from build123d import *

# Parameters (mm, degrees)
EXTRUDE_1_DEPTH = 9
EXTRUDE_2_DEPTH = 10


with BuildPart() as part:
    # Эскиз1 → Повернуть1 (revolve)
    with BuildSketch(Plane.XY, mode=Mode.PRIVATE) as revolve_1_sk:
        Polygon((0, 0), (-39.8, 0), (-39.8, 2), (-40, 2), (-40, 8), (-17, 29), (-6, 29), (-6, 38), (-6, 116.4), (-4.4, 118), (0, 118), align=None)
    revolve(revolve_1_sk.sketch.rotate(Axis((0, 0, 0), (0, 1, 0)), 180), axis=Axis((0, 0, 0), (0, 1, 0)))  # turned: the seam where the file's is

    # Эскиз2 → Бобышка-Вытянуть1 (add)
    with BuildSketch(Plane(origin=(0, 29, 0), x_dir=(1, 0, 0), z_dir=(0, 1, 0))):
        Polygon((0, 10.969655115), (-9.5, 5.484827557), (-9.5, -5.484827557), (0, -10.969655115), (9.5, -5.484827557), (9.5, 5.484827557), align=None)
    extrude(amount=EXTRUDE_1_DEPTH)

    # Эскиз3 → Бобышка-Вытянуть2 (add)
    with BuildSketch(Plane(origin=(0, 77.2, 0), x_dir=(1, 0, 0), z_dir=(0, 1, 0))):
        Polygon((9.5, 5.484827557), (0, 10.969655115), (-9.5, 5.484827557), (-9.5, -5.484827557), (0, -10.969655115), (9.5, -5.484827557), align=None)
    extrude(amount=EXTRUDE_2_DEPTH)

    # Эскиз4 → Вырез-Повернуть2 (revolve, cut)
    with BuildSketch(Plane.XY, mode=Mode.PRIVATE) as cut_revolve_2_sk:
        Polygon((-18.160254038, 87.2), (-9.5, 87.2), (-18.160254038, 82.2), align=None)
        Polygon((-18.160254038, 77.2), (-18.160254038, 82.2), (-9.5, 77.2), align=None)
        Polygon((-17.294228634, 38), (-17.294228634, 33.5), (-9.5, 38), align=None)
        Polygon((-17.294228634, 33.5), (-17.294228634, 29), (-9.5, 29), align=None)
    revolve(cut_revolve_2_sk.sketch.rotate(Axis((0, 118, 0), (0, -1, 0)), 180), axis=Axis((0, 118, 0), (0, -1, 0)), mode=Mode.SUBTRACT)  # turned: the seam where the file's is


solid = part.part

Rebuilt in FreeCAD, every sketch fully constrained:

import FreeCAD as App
import Part
import Sketcher
Q = App.Units.Quantity

doc = App.newDocument("Part")
body = doc.addObject("PartDesign::Body", "Body")

sketch1 = body.newObject("Sketcher::SketchObject", "Sketch")
sketch1.AttachmentSupport = (doc.getObject("XY_Plane"), [""])
sketch1.MapMode = "FlatFace"
sketch1.addGeometry(Part.LineSegment(App.Vector(-39.8, 0, 0), App.Vector(0, 0, 0)), False)
sketch1.addGeometry(Part.LineSegment(App.Vector(0, 0, 0), App.Vector(0, 118, 0)), False)
sketch1.addGeometry(Part.LineSegment(App.Vector(0, 118, 0), App.Vector(-4.4, 118, 0)), False)
sketch1.addGeometry(Part.LineSegment(App.Vector(-4.4, 118, 0), App.Vector(-6, 116.4, 0)), False)
sketch1.addGeometry(Part.LineSegment(App.Vector(-6, 116.4, 0), App.Vector(-6, 29, 0)), False)
sketch1.addGeometry(Part.LineSegment(App.Vector(-6, 29, 0), App.Vector(-17, 29, 0)), False)
sketch1.addGeometry(Part.LineSegment(App.Vector(-17, 29, 0), App.Vector(-40, 8, 0)), False)
sketch1.addGeometry(Part.LineSegment(App.Vector(-40, 8, 0), App.Vector(-40, 2, 0)), False)
sketch1.addGeometry(Part.LineSegment(App.Vector(-40, 2, 0), App.Vector(-39.8, 2, 0)), False)
sketch1.addGeometry(Part.LineSegment(App.Vector(-39.8, 2, 0), App.Vector(-39.8, 0, 0)), False)
sketch1.addConstraint(Sketcher.Constraint("Coincident", 0, 2, 1, 1))
sketch1.addConstraint(Sketcher.Constraint("Coincident", 1, 2, 2, 1))
sketch1.addConstraint(Sketcher.Constraint("Coincident", 2, 2, 3, 1))
sketch1.addConstraint(Sketcher.Constraint("Coincident", 3, 2, 4, 1))
sketch1.addConstraint(Sketcher.Constraint("Coincident", 4, 2, 5, 1))
sketch1.addConstraint(Sketcher.Constraint("Coincident", 5, 2, 6, 1))
sketch1.addConstraint(Sketcher.Constraint("Coincident", 6, 2, 7, 1))
sketch1.addConstraint(Sketcher.Constraint("Coincident", 7, 2, 8, 1))
sketch1.addConstraint(Sketcher.Constraint("Coincident", 8, 2, 9, 1))
sketch1.addConstraint(Sketcher.Constraint("Coincident", 9, 2, 0, 1))
sketch1.addConstraint(Sketcher.Constraint("Horizontal", 0))
sketch1.addConstraint(Sketcher.Constraint("Vertical", 1))
sketch1.addConstraint(Sketcher.Constraint("Horizontal", 2))
sketch1.addConstraint(Sketcher.Constraint("Vertical", 4))
sketch1.addConstraint(Sketcher.Constraint("Horizontal", 5))
sketch1.addConstraint(Sketcher.Constraint("Vertical", 7))
sketch1.addConstraint(Sketcher.Constraint("Horizontal", 8))
sketch1.addConstraint(Sketcher.Constraint("Vertical", 9))
sketch1.addConstraint(Sketcher.Constraint("Coincident", 0, 2, -1, 1))
sketch1.addConstraint(Sketcher.Constraint("DistanceX", 5, 2, 5, 1, Q("11 mm")))
sketch1.addConstraint(Sketcher.Constraint("DistanceY", 1, 1, 1, 2, Q("118 mm")))
sketch1.addConstraint(Sketcher.Constraint("DistanceY", 7, 2, 7, 1, Q("6 mm")))
sketch1.addConstraint(Sketcher.Constraint("DistanceY", 9, 2, 9, 1, Q("2 mm")))
sketch1.addConstraint(Sketcher.Constraint("Angle", 3, Q("-135 deg")))
sketch1.addConstraint(Sketcher.Constraint("DistanceX", 0, 1, 0, 2, Q("39.8 mm")))
sketch1.addConstraint(Sketcher.Constraint("DistanceX", 2, 2, 2, 1, Q("4.4 mm")))
sketch1.addConstraint(Sketcher.Constraint("DistanceX", 8, 1, 8, 2, Q("0.2 mm")))
sketch1.addConstraint(Sketcher.Constraint("DistanceY", 4, 2, 4, 1, Q("87.4 mm")))
sketch1.addConstraint(Sketcher.Constraint("DistanceX", 3, 2, -1, 1, Q("6 mm")))
revolution = body.newObject("PartDesign::Revolution", "Revolution")
revolution.Profile = sketch1
revolution.ReferenceAxis = (sketch1, ["V_Axis"])
revolution.Angle = 360

sketch2 = body.newObject("Sketcher::SketchObject", "Sketch001")
sketch2.AttachmentSupport = (doc.getObject("XZ_Plane"), [""])
sketch2.MapMode = "FlatFace"
sketch2.AttachmentOffset = App.Placement(App.Vector(0, 0, -29), App.Rotation())
sketch2.addGeometry(Part.LineSegment(App.Vector(0, -11, 0), App.Vector(-10, -5, 0)), False)
sketch2.addGeometry(Part.LineSegment(App.Vector(-10, -5, 0), App.Vector(-10, 5, 0)), False)
sketch2.addGeometry(Part.LineSegment(App.Vector(-10, 5, 0), App.Vector(0, 11, 0)), False)
sketch2.addGeometry(Part.LineSegment(App.Vector(0, 11, 0), App.Vector(10, 5, 0)), False)
sketch2.addGeometry(Part.LineSegment(App.Vector(10, 5, 0), App.Vector(10, -5, 0)), False)
sketch2.addGeometry(Part.LineSegment(App.Vector(10, -5, 0), App.Vector(0, -11, 0)), False)
sketch2.addConstraint(Sketcher.Constraint("Coincident", 0, 2, 1, 1))
sketch2.addConstraint(Sketcher.Constraint("Coincident", 1, 2, 2, 1))
sketch2.addConstraint(Sketcher.Constraint("Coincident", 2, 2, 3, 1))
sketch2.addConstraint(Sketcher.Constraint("Coincident", 3, 2, 4, 1))
sketch2.addConstraint(Sketcher.Constraint("Coincident", 4, 2, 5, 1))
sketch2.addConstraint(Sketcher.Constraint("Coincident", 5, 2, 0, 1))
sketch2.addConstraint(Sketcher.Constraint("Vertical", 1))
sketch2.addConstraint(Sketcher.Constraint("Vertical", 4))
sketch2.addConstraint(Sketcher.Constraint("Symmetric", 0, 2, 3, 2, -1, 1))
sketch2.addConstraint(Sketcher.Constraint("Symmetric", 2, 2, 5, 2, -1, 1))
sketch2.addConstraint(Sketcher.Constraint("PointOnObject", 2, 2, -2))
sketch2.addConstraint(Sketcher.Constraint("Parallel", 2, 5))
sketch2.addConstraint(Sketcher.Constraint("Horizontal", 1, 2, 3, 2))
sketch2.addConstraint(Sketcher.Constraint("Angle", 0, Q("150 deg")))
sketch2.addConstraint(Sketcher.Constraint("DistanceX", 1, 2, 3, 2, Q("19 mm")))
sketch2.addConstraint(Sketcher.Constraint("DistanceY", 1, 1, 1, 2, Q("10.969655 mm")))
pad1 = body.newObject("PartDesign::Pad", "Pad")
pad1.Profile = sketch2
pad1.Length = 9
pad1.Reversed = True

sketch3 = body.newObject("Sketcher::SketchObject", "Sketch002")
sketch3.AttachmentSupport = (doc.getObject("XZ_Plane"), [""])
sketch3.MapMode = "FlatFace"
sketch3.AttachmentOffset = App.Placement(App.Vector(0, 0, -77.2), App.Rotation())
sketch3.addGeometry(Part.LineSegment(App.Vector(10, -5, 0), App.Vector(0, -11, 0)), False)
sketch3.addGeometry(Part.LineSegment(App.Vector(0, -11, 0), App.Vector(-10, -5, 0)), False)
sketch3.addGeometry(Part.LineSegment(App.Vector(-10, -5, 0), App.Vector(-10, 5, 0)), False)
sketch3.addGeometry(Part.LineSegment(App.Vector(-10, 5, 0), App.Vector(0, 11, 0)), False)
sketch3.addGeometry(Part.LineSegment(App.Vector(0, 11, 0), App.Vector(10, 5, 0)), False)
sketch3.addGeometry(Part.LineSegment(App.Vector(10, 5, 0), App.Vector(10, -5, 0)), False)
sketch3.addConstraint(Sketcher.Constraint("Coincident", 0, 2, 1, 1))
sketch3.addConstraint(Sketcher.Constraint("Coincident", 1, 2, 2, 1))
sketch3.addConstraint(Sketcher.Constraint("Coincident", 2, 2, 3, 1))
sketch3.addConstraint(Sketcher.Constraint("Coincident", 3, 2, 4, 1))
sketch3.addConstraint(Sketcher.Constraint("Coincident", 4, 2, 5, 1))
sketch3.addConstraint(Sketcher.Constraint("Coincident", 5, 2, 0, 1))
sketch3.addConstraint(Sketcher.Constraint("Vertical", 2))
sketch3.addConstraint(Sketcher.Constraint("Vertical", 5))
sketch3.addConstraint(Sketcher.Constraint("Symmetric", 0, 2, 3, 2, -1, 1))
sketch3.addConstraint(Sketcher.Constraint("Symmetric", 1, 2, 4, 2, -1, 1))
sketch3.addConstraint(Sketcher.Constraint("PointOnObject", 0, 2, -2))
sketch3.addConstraint(Sketcher.Constraint("Parallel", 0, 3))
sketch3.addConstraint(Sketcher.Constraint("Horizontal", 2, 2, 4, 2))
sketch3.addConstraint(Sketcher.Constraint("Angle", 0, Q("-150 deg")))
sketch3.addConstraint(Sketcher.Constraint("DistanceX", 2, 2, 4, 2, Q("19 mm")))
sketch3.addConstraint(Sketcher.Constraint("DistanceY", 2, 1, 2, 2, Q("10.969655 mm")))
pad2 = body.newObject("PartDesign::Pad", "Pad001")
pad2.Profile = sketch3
pad2.Length = 10
pad2.Reversed = True

sketch4 = body.newObject("Sketcher::SketchObject", "Sketch003")
sketch4.AttachmentSupport = (doc.getObject("XY_Plane"), [""])
sketch4.MapMode = "FlatFace"
sketch4.addGeometry(Part.LineSegment(App.Vector(-9.5, 87.2, 0), App.Vector(-18.2, 87.2, 0)), False)
sketch4.addGeometry(Part.LineSegment(App.Vector(-18.2, 87.2, 0), App.Vector(-18.2, 82.2, 0)), False)
sketch4.addGeometry(Part.LineSegment(App.Vector(-18.2, 82.2, 0), App.Vector(-9.5, 87.2, 0)), False)
sketch4.addGeometry(Part.LineSegment(App.Vector(-18.2, 82.2, 0), App.Vector(-18.2, 77.2, 0)), False)
sketch4.addGeometry(Part.LineSegment(App.Vector(-18.2, 77.2, 0), App.Vector(-9.5, 77.2, 0)), False)
sketch4.addGeometry(Part.LineSegment(App.Vector(-9.5, 77.2, 0), App.Vector(-18.2, 82.2, 0)), False)
sketch4.addGeometry(Part.LineSegment(App.Vector(-17.3, 38, 0), App.Vector(-17.3, 33.5, 0)), False)
sketch4.addGeometry(Part.LineSegment(App.Vector(-17.3, 33.5, 0), App.Vector(-9.5, 38, 0)), False)
sketch4.addGeometry(Part.LineSegment(App.Vector(-9.5, 38, 0), App.Vector(-17.3, 38, 0)), False)
sketch4.addGeometry(Part.LineSegment(App.Vector(-17.3, 33.5, 0), App.Vector(-17.3, 29, 0)), False)
sketch4.addGeometry(Part.LineSegment(App.Vector(-17.3, 29, 0), App.Vector(-9.5, 29, 0)), False)
sketch4.addGeometry(Part.LineSegment(App.Vector(-9.5, 29, 0), App.Vector(-17.3, 33.5, 0)), False)
sketch4.addConstraint(Sketcher.Constraint("Coincident", 0, 2, 1, 1))
sketch4.addConstraint(Sketcher.Constraint("Coincident", 1, 2, 2, 1))
sketch4.addConstraint(Sketcher.Constraint("Coincident", 2, 2, 0, 1))
sketch4.addConstraint(Sketcher.Constraint("Coincident", 3, 2, 4, 1))
sketch4.addConstraint(Sketcher.Constraint("Coincident", 4, 2, 5, 1))
sketch4.addConstraint(Sketcher.Constraint("Coincident", 5, 2, 3, 1))
sketch4.addConstraint(Sketcher.Constraint("Coincident", 6, 2, 7, 1))
sketch4.addConstraint(Sketcher.Constraint("Coincident", 7, 2, 8, 1))
sketch4.addConstraint(Sketcher.Constraint("Coincident", 8, 2, 6, 1))
sketch4.addConstraint(Sketcher.Constraint("Coincident", 9, 2, 10, 1))
sketch4.addConstraint(Sketcher.Constraint("Coincident", 10, 2, 11, 1))
sketch4.addConstraint(Sketcher.Constraint("Coincident", 11, 2, 9, 1))
sketch4.addConstraint(Sketcher.Constraint("Horizontal", 0))
sketch4.addConstraint(Sketcher.Constraint("Vertical", 1))
sketch4.addConstraint(Sketcher.Constraint("Vertical", 3))
sketch4.addConstraint(Sketcher.Constraint("Horizontal", 4))
sketch4.addConstraint(Sketcher.Constraint("Vertical", 6))
sketch4.addConstraint(Sketcher.Constraint("Horizontal", 8))
sketch4.addConstraint(Sketcher.Constraint("Vertical", 9))
sketch4.addConstraint(Sketcher.Constraint("Horizontal", 10))
sketch4.addConstraint(Sketcher.Constraint("Coincident", 5, 2, 1, 2))
sketch4.addConstraint(Sketcher.Constraint("Coincident", 11, 2, 6, 2))
sketch4.addConstraint(Sketcher.Constraint("Parallel", 2, 7))
sketch4.addConstraint(Sketcher.Constraint("Parallel", 5, 11))
sketch4.addConstraint(Sketcher.Constraint("Vertical", 2, 2, 4, 2))
sketch4.addConstraint(Sketcher.Constraint("Vertical", 4, 2, 7, 2))
sketch4.addConstraint(Sketcher.Constraint("Vertical", 7, 2, 10, 2))
sketch4.addConstraint(Sketcher.Constraint("Equal", 1, 3))
sketch4.addConstraint(Sketcher.Constraint("DistanceY", 1, 2, 1, 1, Q("5 mm")))
sketch4.addConstraint(Sketcher.Constraint("Angle", 2, Q("30 deg")))
sketch4.addConstraint(Sketcher.Constraint("Distance", 7, Q("9 mm")))
sketch4.addConstraint(Sketcher.Constraint("DistanceY", -1, 1, 7, 2, Q("38 mm")))
sketch4.addConstraint(Sketcher.Constraint("DistanceY", -1, 1, 0, 2, Q("87.2 mm")))
sketch4.addConstraint(Sketcher.Constraint("DistanceX", 2, 2, -1, 1, Q("9.5 mm")))
groove = body.newObject("PartDesign::Groove", "Groove")
groove.Profile = sketch4
groove.ReferenceAxis = (sketch4, ["V_Axis"])
groove.Angle = 360

doc.recompute()
